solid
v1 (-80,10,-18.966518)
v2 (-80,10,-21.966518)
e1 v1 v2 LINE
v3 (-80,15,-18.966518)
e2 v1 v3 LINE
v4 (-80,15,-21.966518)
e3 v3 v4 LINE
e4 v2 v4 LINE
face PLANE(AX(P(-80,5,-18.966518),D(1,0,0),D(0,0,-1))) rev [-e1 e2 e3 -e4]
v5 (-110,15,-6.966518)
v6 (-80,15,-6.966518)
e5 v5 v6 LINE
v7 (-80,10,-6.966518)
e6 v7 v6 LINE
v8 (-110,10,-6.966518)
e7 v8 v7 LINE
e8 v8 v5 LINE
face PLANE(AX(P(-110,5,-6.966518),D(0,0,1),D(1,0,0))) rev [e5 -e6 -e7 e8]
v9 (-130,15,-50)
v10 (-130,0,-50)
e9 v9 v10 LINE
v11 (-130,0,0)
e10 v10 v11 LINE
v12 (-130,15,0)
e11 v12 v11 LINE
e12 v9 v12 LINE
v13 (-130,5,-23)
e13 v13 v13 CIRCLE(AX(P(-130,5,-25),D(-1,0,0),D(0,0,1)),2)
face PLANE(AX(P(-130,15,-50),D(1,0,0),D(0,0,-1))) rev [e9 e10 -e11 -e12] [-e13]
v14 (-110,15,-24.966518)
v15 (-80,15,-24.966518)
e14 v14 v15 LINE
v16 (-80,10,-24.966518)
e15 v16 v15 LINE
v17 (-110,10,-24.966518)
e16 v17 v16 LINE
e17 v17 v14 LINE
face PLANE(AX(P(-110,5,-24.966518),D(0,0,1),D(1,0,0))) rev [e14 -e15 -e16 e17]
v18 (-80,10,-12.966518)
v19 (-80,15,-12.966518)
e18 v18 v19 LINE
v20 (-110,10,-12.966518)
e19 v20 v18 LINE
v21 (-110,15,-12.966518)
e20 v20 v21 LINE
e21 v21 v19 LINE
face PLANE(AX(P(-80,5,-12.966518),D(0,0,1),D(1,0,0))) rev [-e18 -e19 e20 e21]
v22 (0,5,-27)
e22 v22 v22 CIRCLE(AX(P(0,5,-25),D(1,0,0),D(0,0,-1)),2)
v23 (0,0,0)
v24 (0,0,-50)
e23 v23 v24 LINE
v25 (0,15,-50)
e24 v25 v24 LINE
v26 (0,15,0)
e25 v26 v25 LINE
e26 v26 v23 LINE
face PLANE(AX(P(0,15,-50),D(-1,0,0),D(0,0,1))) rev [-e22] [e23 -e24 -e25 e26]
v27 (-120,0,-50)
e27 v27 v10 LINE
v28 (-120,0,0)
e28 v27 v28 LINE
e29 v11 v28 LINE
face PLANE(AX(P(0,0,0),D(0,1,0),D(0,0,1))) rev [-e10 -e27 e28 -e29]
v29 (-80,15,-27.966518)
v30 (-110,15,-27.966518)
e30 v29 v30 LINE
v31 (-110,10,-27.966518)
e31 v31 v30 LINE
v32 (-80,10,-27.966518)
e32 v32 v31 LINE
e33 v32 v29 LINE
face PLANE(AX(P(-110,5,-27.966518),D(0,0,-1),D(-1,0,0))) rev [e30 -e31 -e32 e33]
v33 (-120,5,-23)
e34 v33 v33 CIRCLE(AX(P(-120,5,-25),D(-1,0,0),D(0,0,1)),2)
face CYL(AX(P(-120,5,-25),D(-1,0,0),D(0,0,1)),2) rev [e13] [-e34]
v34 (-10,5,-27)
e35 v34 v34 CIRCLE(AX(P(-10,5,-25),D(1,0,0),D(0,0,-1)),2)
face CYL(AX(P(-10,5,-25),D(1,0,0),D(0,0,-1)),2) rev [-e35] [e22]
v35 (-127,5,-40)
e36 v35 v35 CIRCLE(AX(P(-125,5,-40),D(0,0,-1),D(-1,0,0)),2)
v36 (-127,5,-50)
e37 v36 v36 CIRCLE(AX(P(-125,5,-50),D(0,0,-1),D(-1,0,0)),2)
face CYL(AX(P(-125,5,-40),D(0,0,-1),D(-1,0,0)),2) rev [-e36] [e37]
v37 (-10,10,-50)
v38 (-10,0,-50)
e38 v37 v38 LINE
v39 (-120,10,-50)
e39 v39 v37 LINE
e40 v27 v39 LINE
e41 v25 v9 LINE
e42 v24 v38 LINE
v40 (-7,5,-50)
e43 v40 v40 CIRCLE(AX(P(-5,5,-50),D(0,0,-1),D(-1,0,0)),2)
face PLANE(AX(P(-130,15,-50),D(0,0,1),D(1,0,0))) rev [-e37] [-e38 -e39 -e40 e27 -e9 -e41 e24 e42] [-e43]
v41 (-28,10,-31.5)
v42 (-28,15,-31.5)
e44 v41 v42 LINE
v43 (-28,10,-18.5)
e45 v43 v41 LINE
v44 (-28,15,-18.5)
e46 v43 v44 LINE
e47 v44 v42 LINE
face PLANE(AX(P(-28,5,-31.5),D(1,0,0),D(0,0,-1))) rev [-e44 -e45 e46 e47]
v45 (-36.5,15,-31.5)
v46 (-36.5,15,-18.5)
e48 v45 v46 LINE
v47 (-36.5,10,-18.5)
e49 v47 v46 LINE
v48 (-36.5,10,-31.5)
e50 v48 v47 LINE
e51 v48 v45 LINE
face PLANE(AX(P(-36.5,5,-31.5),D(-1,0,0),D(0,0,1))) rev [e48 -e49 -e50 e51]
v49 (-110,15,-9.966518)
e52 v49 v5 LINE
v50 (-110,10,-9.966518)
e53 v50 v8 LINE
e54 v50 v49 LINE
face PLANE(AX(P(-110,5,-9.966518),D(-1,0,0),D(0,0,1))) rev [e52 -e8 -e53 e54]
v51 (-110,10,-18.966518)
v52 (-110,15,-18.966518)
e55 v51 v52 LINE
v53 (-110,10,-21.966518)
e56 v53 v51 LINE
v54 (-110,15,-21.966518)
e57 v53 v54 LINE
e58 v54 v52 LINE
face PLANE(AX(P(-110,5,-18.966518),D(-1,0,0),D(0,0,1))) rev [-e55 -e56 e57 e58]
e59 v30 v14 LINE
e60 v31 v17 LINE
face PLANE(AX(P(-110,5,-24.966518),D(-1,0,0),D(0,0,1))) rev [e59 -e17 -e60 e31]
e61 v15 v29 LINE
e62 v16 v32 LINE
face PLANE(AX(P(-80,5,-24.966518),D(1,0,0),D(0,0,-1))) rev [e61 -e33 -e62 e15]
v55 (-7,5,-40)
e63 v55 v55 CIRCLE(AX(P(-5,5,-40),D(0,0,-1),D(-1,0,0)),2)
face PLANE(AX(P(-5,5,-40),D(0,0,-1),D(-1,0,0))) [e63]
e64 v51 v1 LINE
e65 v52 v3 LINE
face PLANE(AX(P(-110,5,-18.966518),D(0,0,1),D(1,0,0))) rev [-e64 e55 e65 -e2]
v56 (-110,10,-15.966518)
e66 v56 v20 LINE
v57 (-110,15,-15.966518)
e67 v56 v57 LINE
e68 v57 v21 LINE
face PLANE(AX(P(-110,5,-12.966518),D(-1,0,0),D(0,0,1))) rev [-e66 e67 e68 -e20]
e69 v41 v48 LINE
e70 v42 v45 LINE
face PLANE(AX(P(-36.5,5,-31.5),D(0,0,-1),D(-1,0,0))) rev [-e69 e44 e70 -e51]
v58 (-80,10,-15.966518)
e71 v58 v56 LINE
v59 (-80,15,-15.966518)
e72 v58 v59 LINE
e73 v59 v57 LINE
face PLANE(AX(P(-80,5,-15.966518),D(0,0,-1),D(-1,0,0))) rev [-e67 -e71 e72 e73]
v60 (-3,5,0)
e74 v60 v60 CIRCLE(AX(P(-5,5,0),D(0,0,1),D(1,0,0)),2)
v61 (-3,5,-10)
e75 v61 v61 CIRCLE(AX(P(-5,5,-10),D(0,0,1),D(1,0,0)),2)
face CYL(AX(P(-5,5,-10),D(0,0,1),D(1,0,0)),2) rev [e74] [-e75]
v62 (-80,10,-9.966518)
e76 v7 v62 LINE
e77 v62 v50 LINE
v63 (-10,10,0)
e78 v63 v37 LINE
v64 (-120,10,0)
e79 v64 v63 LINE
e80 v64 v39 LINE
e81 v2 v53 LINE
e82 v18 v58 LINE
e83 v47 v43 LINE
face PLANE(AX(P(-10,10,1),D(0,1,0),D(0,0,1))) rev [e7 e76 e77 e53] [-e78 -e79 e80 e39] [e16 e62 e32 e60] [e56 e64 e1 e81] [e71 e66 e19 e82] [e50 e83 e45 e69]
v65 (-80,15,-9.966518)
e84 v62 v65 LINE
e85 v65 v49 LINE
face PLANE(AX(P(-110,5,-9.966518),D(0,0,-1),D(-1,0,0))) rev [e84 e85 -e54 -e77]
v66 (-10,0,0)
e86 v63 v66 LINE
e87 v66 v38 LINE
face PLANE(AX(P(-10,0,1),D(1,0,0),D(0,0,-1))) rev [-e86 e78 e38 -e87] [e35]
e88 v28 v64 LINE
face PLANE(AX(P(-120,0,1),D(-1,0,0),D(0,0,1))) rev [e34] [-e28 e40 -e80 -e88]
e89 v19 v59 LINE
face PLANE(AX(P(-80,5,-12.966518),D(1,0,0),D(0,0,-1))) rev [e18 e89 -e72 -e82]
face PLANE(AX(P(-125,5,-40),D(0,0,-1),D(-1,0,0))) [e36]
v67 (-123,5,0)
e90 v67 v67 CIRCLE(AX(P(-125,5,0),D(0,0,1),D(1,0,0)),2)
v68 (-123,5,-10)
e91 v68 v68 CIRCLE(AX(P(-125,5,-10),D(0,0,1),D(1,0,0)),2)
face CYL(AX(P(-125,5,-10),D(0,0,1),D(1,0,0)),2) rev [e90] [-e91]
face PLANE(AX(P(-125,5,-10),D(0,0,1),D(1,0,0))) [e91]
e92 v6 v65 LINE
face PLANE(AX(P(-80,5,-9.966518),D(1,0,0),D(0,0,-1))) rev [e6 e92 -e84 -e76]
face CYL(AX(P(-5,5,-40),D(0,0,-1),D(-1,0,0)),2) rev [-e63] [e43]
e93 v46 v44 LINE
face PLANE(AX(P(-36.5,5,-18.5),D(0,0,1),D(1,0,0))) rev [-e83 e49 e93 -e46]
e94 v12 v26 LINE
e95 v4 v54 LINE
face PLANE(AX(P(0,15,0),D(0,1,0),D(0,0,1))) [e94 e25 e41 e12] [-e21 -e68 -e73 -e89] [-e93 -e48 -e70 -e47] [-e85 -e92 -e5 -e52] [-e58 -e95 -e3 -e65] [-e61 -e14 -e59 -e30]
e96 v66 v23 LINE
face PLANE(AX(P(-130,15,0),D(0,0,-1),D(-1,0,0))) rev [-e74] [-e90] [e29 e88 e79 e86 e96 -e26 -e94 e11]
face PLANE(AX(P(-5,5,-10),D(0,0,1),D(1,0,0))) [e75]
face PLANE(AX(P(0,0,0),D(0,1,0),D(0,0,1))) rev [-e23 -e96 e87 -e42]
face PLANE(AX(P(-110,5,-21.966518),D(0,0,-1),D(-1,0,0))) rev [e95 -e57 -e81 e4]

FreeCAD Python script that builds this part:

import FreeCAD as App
import Part
import Sketcher

V = App.Vector
Q = App.Units.Quantity

doc = App.newDocument("Part")
body = doc.addObject("PartDesign::Body", "Body")

sketch1 = body.newObject("Sketcher::SketchObject", "Sketch")
sketch1.AttachmentSupport = (doc.getObject("XZ_Plane"), [""])
sketch1.MapMode = "FlatFace"
sketch1.addGeometry([
    Part.LineSegment(V(-130, -50, 0), V(-130, 0, 0)),
    Part.LineSegment(V(-130, 0, 0), V(0, 0, 0)),
    Part.LineSegment(V(0, 0, 0), V(0, -50, 0)),
    Part.LineSegment(V(0, -50, 0), V(-130, -50, 0)),
], False)
sketch1.addConstraint([
    Sketcher.Constraint("Coincident", 0, 2, 1, 1),
    Sketcher.Constraint("Coincident", 1, 2, 2, 1),
    Sketcher.Constraint("Coincident", 2, 2, 3, 1),
    Sketcher.Constraint("Coincident", 3, 2, 0, 1),
    Sketcher.Constraint("Vertical", 0),
    Sketcher.Constraint("Horizontal", 1),
    Sketcher.Constraint("Vertical", 2),
    Sketcher.Constraint("Horizontal", 3),
    Sketcher.Constraint("Coincident", 1, 2, -1, 1),
    Sketcher.Constraint("DistanceX", 1, 1, 1, 2, Q("130 mm")),
    Sketcher.Constraint("DistanceY", 0, 1, 0, 2, Q("50 mm")),
])
pad1 = body.newObject("PartDesign::Pad", "Pad")
pad1.Profile = sketch1
pad1.Length = 15
pad1.Reversed = True

sketch2 = body.newObject("Sketcher::SketchObject", "Sketch001")
sketch2.AttachmentSupport = (doc.getObject("XY_Plane"), [""])
sketch2.MapMode = "FlatFace"
sketch2.AttachmentOffset = App.Placement(V(0, 0, -50), App.Rotation())
sketch2.addGeometry([
    Part.LineSegment(V(-10, 10, 0), V(-10, 0, 0)),
    Part.LineSegment(V(-10, 0, 0), V(-120, 0, 0)),
    Part.LineSegment(V(-120, 0, 0), V(-120, 10, 0)),
    Part.LineSegment(V(-120, 10, 0), V(-10, 10, 0)),
], False)
sketch2.addConstraint([
    Sketcher.Constraint("Coincident", 0, 2, 1, 1),
    Sketcher.Constraint("Coincident", 1, 2, 2, 1),
    Sketcher.Constraint("Coincident", 2, 2, 3, 1),
    Sketcher.Constraint("Coincident", 3, 2, 0, 1),
    Sketcher.Constraint("Vertical", 0),
    Sketcher.Constraint("Horizontal", 1),
    Sketcher.Constraint("Vertical", 2),
    Sketcher.Constraint("Horizontal", 3),
    Sketcher.Constraint("PointOnObject", 0, 2, -1),
    Sketcher.Constraint("DistanceX", 1, 2, 1, 1, Q("110 mm")),
    Sketcher.Constraint("DistanceY", 0, 2, 0, 1, Q("10 mm")),
    Sketcher.Constraint("DistanceX", 0, 2, -1, 1, Q("10 mm")),
])
pocket1 = body.newObject("PartDesign::Pocket", "Pocket")
pocket1.Profile = sketch2
pocket1.Length = 51
pocket1.Reversed = True

sketch3 = body.newObject("Sketcher::SketchObject", "Sketch002")
sketch3.AttachmentSupport = (doc.getObject("YZ_Plane"), [""])
sketch3.MapMode = "FlatFace"
sketch3.addGeometry(Part.Circle(V(5, -25, 0), V(0, 0, 1), 2), False)
sketch3.addConstraint([
    Sketcher.Constraint("Diameter", 0, Q("4 mm")),
    Sketcher.Constraint("DistanceX", -1, 1, 0, 3, Q("5 mm")),
    Sketcher.Constraint("DistanceY", 0, 3, -1, 1, Q("25 mm")),
])
pocket2 = body.newObject("PartDesign::Pocket", "Pocket001")
pocket2.Profile = sketch3
pocket2.Length = 10

sketch4 = body.newObject("Sketcher::SketchObject", "Sketch003")
sketch4.AttachmentSupport = (doc.getObject("YZ_Plane"), [""])
sketch4.MapMode = "FlatFace"
sketch4.AttachmentOffset = App.Placement(V(0, 0, -120), App.Rotation())
sketch4.addGeometry(Part.Circle(V(5, -25, 0), V(0, 0, 1), 2), False)
sketch4.addConstraint([
    Sketcher.Constraint("Diameter", 0, Q("4 mm")),
    Sketcher.Constraint("DistanceX", -1, 1, 0, 3, Q("5 mm")),
    Sketcher.Constraint("DistanceY", 0, 3, -1, 1, Q("25 mm")),
])
pocket3 = body.newObject("PartDesign::Pocket", "Pocket002")
pocket3.Profile = sketch4
pocket3.Length = 10

sketch5 = body.newObject("Sketcher::SketchObject", "Sketch004")
sketch5.AttachmentSupport = (doc.getObject("XY_Plane"), [""])
sketch5.MapMode = "FlatFace"
sketch5.addGeometry([
    Part.Circle(V(-5, 5, 0), V(0, 0, 1), 2),
    Part.Circle(V(-125, 5, 0), V(0, 0, 1), 2),
], False)
sketch5.addConstraint([
    Sketcher.Constraint("Equal", 0, 1),
    Sketcher.Constraint("Horizontal", 0, 3, 1, 3),
    Sketcher.Constraint("Diameter", 0, Q("4 mm")),
    Sketcher.Constraint("DistanceX", 0, 3, -1, 1, Q("5 mm")),
    Sketcher.Constraint("DistanceY", -1, 1, 0, 3, Q("5 mm")),
    Sketcher.Constraint("DistanceX", 1, 3, -1, 1, Q("125 mm")),
])
pocket4 = body.newObject("PartDesign::Pocket", "Pocket003")
pocket4.Profile = sketch5
pocket4.Length = 10

sketch6 = body.newObject("Sketcher::SketchObject", "Sketch005")
sketch6.AttachmentSupport = (doc.getObject("XY_Plane"), [""])
sketch6.MapMode = "FlatFace"
sketch6.AttachmentOffset = App.Placement(V(0, 0, -40), App.Rotation())
sketch6.addGeometry([
    Part.Circle(V(-5, 5, 0), V(0, 0, 1), 2),
    Part.Circle(V(-125, 5, 0), V(0, 0, 1), 2),
], False)
sketch6.addConstraint([
    Sketcher.Constraint("Equal", 0, 1),
    Sketcher.Constraint("Horizontal", 0, 3, 1, 3),
    Sketcher.Constraint("Diameter", 0, Q("4 mm")),
    Sketcher.Constraint("DistanceX", 0, 3, -1, 1, Q("5 mm")),
    Sketcher.Constraint("DistanceY", -1, 1, 0, 3, Q("5 mm")),
    Sketcher.Constraint("DistanceX", 1, 3, -1, 1, Q("125 mm")),
])
pocket5 = body.newObject("PartDesign::Pocket", "Pocket004")
pocket5.Profile = sketch6
pocket5.Length = 10

sketch7 = body.newObject("Sketcher::SketchObject", "Sketch006")
sketch7.AttachmentSupport = (doc.getObject("XZ_Plane"), [""])
sketch7.MapMode = "FlatFace"
sketch7.AttachmentOffset = App.Placement(V(0, 0, -15), App.Rotation())
sketch7.addGeometry([
    Part.LineSegment(V(-36, -32, 0), V(-36, -18, 0)),
    Part.LineSegment(V(-36, -18, 0), V(-28, -18, 0)),
    Part.LineSegment(V(-28, -18, 0), V(-28, -32, 0)),
    Part.LineSegment(V(-28, -32, 0), V(-36, -32, 0)),
], False)
sketch7.addConstraint([
    Sketcher.Constraint("Coincident", 0, 2, 1, 1),
    Sketcher.Constraint("Coincident", 1, 2, 2, 1),
    Sketcher.Constraint("Coincident", 2, 2, 3, 1),
    Sketcher.Constraint("Coincident", 3, 2, 0, 1),
    Sketcher.Constraint("Vertical", 0),
    Sketcher.Constraint("Horizontal", 1),
    Sketcher.Constraint("Vertical", 2),
    Sketcher.Constraint("Horizontal", 3),
    Sketcher.Constraint("DistanceY", 0, 1, 0, 2, Q("13 mm")),
    Sketcher.Constraint("DistanceX", 1, 1, 1, 2, Q("8.5 mm")),
    Sketcher.Constraint("DistanceX", 1, 2, -1, 1, Q("28 mm")),
    Sketcher.Constraint("DistanceY", 0, 2, -1, 1, Q("18.5 mm")),
])
pocket6 = body.newObject("PartDesign::Pocket", "Pocket005")
pocket6.Profile = sketch7
pocket6.Length = 10
pocket6.Reversed = True

sketch8 = body.newObject("Sketcher::SketchObject", "Sketch007")
sketch8.AttachmentSupport = (doc.getObject("XZ_Plane"), [""])
sketch8.MapMode = "FlatFace"
sketch8.AttachmentOffset = App.Placement(V(0, 0, -15), App.Rotation())
sketch8.addGeometry([
    Part.LineSegment(V(-110, -22, 0), V(-110, -19, 0)),
    Part.LineSegment(V(-110, -19, 0), V(-80, -19, 0)),
    Part.LineSegment(V(-80, -19, 0), V(-80, -22, 0)),
    Part.LineSegment(V(-80, -22, 0), V(-110, -22, 0)),
    Part.LineSegment(V(-110, -10, 0), V(-110, -7, 0)),
    Part.LineSegment(V(-110, -7, 0), V(-80, -7, 0)),
    Part.LineSegment(V(-80, -7, 0), V(-80, -10, 0)),
    Part.LineSegment(V(-80, -10, 0), V(-110, -10, 0)),
    Part.LineSegment(V(-110, -28, 0), V(-110, -25, 0)),
    Part.LineSegment(V(-110, -25, 0), V(-80, -25, 0)),
    Part.LineSegment(V(-80, -25, 0), V(-80, -28, 0)),
    Part.LineSegment(V(-80, -28, 0), V(-110, -28, 0)),
    Part.LineSegment(V(-110, -16, 0), V(-110, -13, 0)),
    Part.LineSegment(V(-110, -13, 0), V(-80, -13, 0)),
    Part.LineSegment(V(-80, -13, 0), V(-80, -16, 0)),
    Part.LineSegment(V(-80, -16, 0), V(-110, -16, 0)),
], False)
sketch8.addConstraint([
    Sketcher.Constraint("Coincident", 0, 2, 1, 1),
    Sketcher.Constraint("Coincident", 1, 2, 2, 1),
    Sketcher.Constraint("Coincident", 2, 2, 3, 1),
    Sketcher.Constraint("Coincident", 3, 2, 0, 1),
    Sketcher.Constraint("Coincident", 4, 2, 5, 1),
    Sketcher.Constraint("Coincident", 5, 2, 6, 1),
    Sketcher.Constraint("Coincident", 6, 2, 7, 1),
    Sketcher.Constraint("Coincident", 7, 2, 4, 1),
    Sketcher.Constraint("Coincident", 8, 2, 9, 1),
    Sketcher.Constraint("Coincident", 9, 2, 10, 1),
    Sketcher.Constraint("Coincident", 10, 2, 11, 1),
    Sketcher.Constraint("Coincident", 11, 2, 8, 1),
    Sketcher.Constraint("Coincident", 12, 2, 13, 1),
    Sketcher.Constraint("Coincident", 13, 2, 14, 1),
    Sketcher.Constraint("Coincident", 14, 2, 15, 1),
    Sketcher.Constraint("Coincident", 15, 2, 12, 1),
    Sketcher.Constraint("Vertical", 0),
    Sketcher.Constraint("Horizontal", 1),
    Sketcher.Constraint("Vertical", 2),
    Sketcher.Constraint("Horizontal", 3),
    Sketcher.Constraint("Vertical", 4),
    Sketcher.Constraint("Horizontal", 5),
    Sketcher.Constraint("Vertical", 6),
    Sketcher.Constraint("Horizontal", 7),
    Sketcher.Constraint("Vertical", 8),
    Sketcher.Constraint("Horizontal", 9),
    Sketcher.Constraint("Vertical", 10),
    Sketcher.Constraint("Horizontal", 11),
    Sketcher.Constraint("Vertical", 12),
    Sketcher.Constraint("Horizontal", 13),
    Sketcher.Constraint("Vertical", 14),
    Sketcher.Constraint("Horizontal", 15),
    Sketcher.Constraint("Vertical", 3, 2, 4, 2),
    Sketcher.Constraint("Vertical", 2, 2, 5, 2),
    Sketcher.Constraint("Vertical", 7, 2, 8, 2),
    Sketcher.Constraint("Vertical", 6, 2, 9, 2),
    Sketcher.Constraint("Vertical", 11, 2, 12, 2),
    Sketcher.Constraint("Vertical", 10, 2, 13, 2),
    Sketcher.Constraint("Equal", 2, 4),
    Sketcher.Constraint("Equal", 6, 8),
    Sketcher.Constraint("Equal", 10, 12),
    Sketcher.Constraint("DistanceX", 1, 1, 1, 2, Q("30 mm")),
    Sketcher.Constraint("DistanceY", 0, 1, 0, 2, Q("3 mm")),
    Sketcher.Constraint("DistanceX", 0, 2, -1, 1, Q("110 mm")),
    Sketcher.Constraint("DistanceY", 0, 2, 4, 2, Q("12 mm")),
    Sketcher.Constraint("DistanceY", 8, 2, 3, 2, Q("3 mm")),
    Sketcher.Constraint("DistanceY", 12, 2, 7, 2, Q("3 mm")),
    Sketcher.Constraint("DistanceY", 0, 2, -1, 1, Q("18.966518 mm")),
])
pocket7 = body.newObject("PartDesign::Pocket", "Pocket006")
pocket7.Profile = sketch8
pocket7.Length = 10
pocket7.Reversed = True

doc.recompute()
